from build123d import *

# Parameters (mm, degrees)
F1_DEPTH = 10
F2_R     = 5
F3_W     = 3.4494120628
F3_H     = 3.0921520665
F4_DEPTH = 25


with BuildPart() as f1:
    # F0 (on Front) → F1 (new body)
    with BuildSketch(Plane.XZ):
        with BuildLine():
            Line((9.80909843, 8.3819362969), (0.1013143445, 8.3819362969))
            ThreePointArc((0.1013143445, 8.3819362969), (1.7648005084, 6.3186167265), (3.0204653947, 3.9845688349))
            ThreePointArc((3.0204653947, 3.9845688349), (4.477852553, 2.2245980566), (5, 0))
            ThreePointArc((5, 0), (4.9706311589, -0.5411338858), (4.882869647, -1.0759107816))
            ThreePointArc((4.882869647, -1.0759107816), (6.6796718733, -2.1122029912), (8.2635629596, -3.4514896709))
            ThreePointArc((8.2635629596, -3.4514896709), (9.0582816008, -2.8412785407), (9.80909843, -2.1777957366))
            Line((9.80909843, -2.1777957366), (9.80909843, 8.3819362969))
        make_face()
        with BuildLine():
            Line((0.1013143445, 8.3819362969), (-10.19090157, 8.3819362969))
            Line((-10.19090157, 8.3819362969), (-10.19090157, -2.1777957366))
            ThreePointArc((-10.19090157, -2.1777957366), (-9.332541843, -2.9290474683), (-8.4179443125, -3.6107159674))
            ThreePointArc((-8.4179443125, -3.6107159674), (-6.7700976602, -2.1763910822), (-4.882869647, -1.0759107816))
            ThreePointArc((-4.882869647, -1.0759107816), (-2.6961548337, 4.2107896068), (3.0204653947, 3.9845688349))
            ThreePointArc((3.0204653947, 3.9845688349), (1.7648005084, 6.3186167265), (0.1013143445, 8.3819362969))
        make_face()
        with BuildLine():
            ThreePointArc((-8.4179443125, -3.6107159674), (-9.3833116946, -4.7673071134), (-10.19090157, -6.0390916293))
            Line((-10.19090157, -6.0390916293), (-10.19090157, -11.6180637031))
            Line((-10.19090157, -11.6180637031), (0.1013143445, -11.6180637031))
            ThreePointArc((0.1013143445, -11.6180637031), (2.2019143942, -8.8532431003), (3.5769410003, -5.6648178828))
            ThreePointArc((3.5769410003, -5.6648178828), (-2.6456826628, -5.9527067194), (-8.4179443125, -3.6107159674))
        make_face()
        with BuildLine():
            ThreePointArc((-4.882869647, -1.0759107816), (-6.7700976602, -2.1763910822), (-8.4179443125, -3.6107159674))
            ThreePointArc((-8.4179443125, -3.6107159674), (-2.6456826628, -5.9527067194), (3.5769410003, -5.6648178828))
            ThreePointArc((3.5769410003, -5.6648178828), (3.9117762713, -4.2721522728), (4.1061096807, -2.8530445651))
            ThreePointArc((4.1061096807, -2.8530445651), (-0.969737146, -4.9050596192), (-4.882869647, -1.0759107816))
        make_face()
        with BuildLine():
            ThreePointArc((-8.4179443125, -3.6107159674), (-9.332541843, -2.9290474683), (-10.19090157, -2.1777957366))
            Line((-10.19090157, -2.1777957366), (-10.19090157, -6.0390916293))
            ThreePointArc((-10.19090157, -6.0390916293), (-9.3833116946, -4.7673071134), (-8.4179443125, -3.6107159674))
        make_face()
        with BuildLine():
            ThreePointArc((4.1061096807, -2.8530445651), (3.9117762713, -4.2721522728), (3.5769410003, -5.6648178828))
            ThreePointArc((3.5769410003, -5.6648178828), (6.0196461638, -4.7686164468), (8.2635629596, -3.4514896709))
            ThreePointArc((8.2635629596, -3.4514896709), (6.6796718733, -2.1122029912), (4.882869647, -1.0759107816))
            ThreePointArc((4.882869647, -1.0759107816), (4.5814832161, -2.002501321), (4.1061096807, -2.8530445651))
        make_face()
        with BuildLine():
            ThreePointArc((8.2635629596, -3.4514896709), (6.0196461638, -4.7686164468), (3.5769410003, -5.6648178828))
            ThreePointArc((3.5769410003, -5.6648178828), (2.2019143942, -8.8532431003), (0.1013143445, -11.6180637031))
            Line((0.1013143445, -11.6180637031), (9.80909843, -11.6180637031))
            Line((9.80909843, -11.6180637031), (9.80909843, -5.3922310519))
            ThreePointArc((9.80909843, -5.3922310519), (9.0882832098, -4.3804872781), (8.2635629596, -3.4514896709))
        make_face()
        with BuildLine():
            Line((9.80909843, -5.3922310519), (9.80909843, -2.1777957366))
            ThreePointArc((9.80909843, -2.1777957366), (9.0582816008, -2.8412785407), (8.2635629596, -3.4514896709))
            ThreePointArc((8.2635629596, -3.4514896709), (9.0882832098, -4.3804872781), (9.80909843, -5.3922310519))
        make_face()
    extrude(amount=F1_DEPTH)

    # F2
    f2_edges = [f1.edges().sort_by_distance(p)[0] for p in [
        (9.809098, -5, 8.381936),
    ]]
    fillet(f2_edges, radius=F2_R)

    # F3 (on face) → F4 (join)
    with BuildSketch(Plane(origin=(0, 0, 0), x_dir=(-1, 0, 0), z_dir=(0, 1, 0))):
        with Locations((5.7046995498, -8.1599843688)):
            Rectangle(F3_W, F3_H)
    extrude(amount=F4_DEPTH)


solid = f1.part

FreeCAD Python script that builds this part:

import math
import FreeCAD as App
import Part
import Sketcher

V = App.Vector
Q = App.Units.Quantity


def edges_at(feature, points):
    """Names of the edges that pass closest to the given points."""
    edges = feature.Shape.Edges
    near = lambda p: min(range(len(edges)), key=lambda i: edges[i].distToShape(Part.Vertex(*p))[0])
    return sorted({f"Edge{near(p) + 1}" for p in points})


def add_polygon(sketch, points):
    """Adds a closed chain of lines whose ends are joined by coincident constraints."""
    first, n = sketch.GeometryCount, len(points)
    for a, b in zip(points, points[1:] + points[:1]):
        sketch.addGeometry(Part.LineSegment(App.Vector(*a, 0), App.Vector(*b, 0)), False)
    for i in range(n):
        sketch.addConstraint(Sketcher.Constraint("Coincident", first + i, 2, first + (i + 1) % n, 1))

doc = App.newDocument("Part")
params = doc.addObject("Spreadsheet::Sheet", "Params")
for row, (alias, value) in enumerate([
    ("sketch1_radius", "5 mm"),
    ("sketch1_width", "20 mm"),
    ("pad1_length", "10 mm"),
    ("fillet_radius", "5 mm"),
    ("pad2_length", "25 mm"),
], start=1):
    params.set(f"A{row}", alias)
    params.set(f"B{row}", "=" + value)
    params.setAlias(f"B{row}", alias)

body = doc.addObject("PartDesign::Body", "Body")

# Sketch on XZ plane
sketch1 = body.newObject("Sketcher::SketchObject", "Sketch")
sketch1.AttachmentSupport = (doc.getObject("XZ_Plane"), [""])
sketch1.MapMode = "FlatFace"
add_polygon(sketch1, [(9.8, 8.4), (-10.2, 8.4), (-10.2, -11.6), (9.8, -11.6)])  # lines 0-3
sketch1.addGeometry(Part.ArcOfCircle(Part.Circle(V(0, 0, 0), V(0, 0, 1), 5), math.radians(-168), math.radians(-35)), False)  # 4
sketch1.addGeometry(Part.ArcOfCircle(Part.Circle(V(0, 0, 0), V(0, 0, 1), 5), math.radians(53), math.radians(192)), False)  # 5
sketch1.addGeometry(Part.ArcOfCircle(Part.Circle(V(0, 0, 0), V(0, 0, 1), 5), math.radians(0), math.radians(53)), False)  # 6
sketch1.addGeometry(Part.ArcOfCircle(Part.Circle(V(0, 0, 0), V(0, 0, 1), 5), math.radians(-12.43), math.radians(0)), False)  # 7
sketch1.addGeometry(Part.ArcOfCircle(Part.Circle(V(0, 0, 0), V(0, 0, 1), 5), math.radians(-35), math.radians(-12)), False)  # 8
sketch1.addConstraint(Sketcher.Constraint("Tangent", 4, 1, 5, 2))
sketch1.addConstraint(Sketcher.Constraint("Tangent", 5, 1, 6, 2))
sketch1.addConstraint(Sketcher.Constraint("Tangent", 6, 1, 7, 2))
sketch1.addConstraint(Sketcher.Constraint("Tangent", 7, 1, 8, 2))
sketch1.addConstraint(Sketcher.Constraint("Tangent", 8, 1, 4, 2))
sketch1.addConstraint(Sketcher.Constraint("Horizontal", 0))
sketch1.addConstraint(Sketcher.Constraint("Vertical", 1))
sketch1.addConstraint(Sketcher.Constraint("Horizontal", 2))
sketch1.addConstraint(Sketcher.Constraint("Vertical", 3))
sketch1.addConstraint(Sketcher.Constraint("Coincident", 4, 3, -1, 1))
sketch1.addConstraint(Sketcher.Constraint("Coincident", 6, 3, -1, 1))
sketch1.addConstraint(Sketcher.Constraint("PointOnObject", 6, 1, -1))
sketch1.addConstraint(Sketcher.Constraint("Horizontal", 4, 1, 7, 1))
sketch1.addConstraint(Sketcher.Constraint("Equal", 2, 1))
sketch1.addConstraint(Sketcher.Constraint("Radius", 4, Q("5 mm")))
sketch1.addConstraint(Sketcher.Constraint("DistanceX", 0, 2, 0, 1, Q("20 mm")))
sketch1.addConstraint(Sketcher.Constraint("DistanceX", 0, 2, -1, 1, Q("10.190902 mm")))
sketch1.addConstraint(Sketcher.Constraint("DistanceX", 4, 1, -1, 1, Q("4.88287 mm")))
sketch1.addConstraint(Sketcher.Constraint("DistanceY", -1, 1, 5, 1, Q("3.984569 mm")))
sketch1.addConstraint(Sketcher.Constraint("DistanceX", -1, 1, 8, 1, Q("4.10611 mm")))
sketch1.addConstraint(Sketcher.Constraint("DistanceY", -1, 1, 0, 2, Q("8.381936 mm")))
sketch1.setExpression("Constraints[18]", "Params.sketch1_radius")
sketch1.setExpression("Constraints[19]", "Params.sketch1_width")
pad1 = body.newObject("PartDesign::Pad", "Pad")
pad1.Profile = sketch1
pad1.setExpression("Length", "Params.pad1_length")
doc.recompute()

fillet = body.newObject("PartDesign::Fillet", "Fillet")
fillet.Base = (pad1, edges_at(pad1, [(9.809, -5, 8.382)]))
fillet.setExpression("Radius", "Params.fillet_radius")

# Sketch on XZ plane
sketch2 = body.newObject("Sketcher::SketchObject", "Sketch001")
sketch2.AttachmentSupport = (doc.getObject("XZ_Plane"), [""])
sketch2.MapMode = "FlatFace"
add_polygon(sketch2, [(-4, -6.6), (-4, -9.7), (-7.4, -9.7), (-7.4, -6.6)])  # lines 0-3
sketch2.addConstraint(Sketcher.Constraint("Vertical", 0))
sketch2.addConstraint(Sketcher.Constraint("Horizontal", 1))
sketch2.addConstraint(Sketcher.Constraint("Vertical", 2))
sketch2.addConstraint(Sketcher.Constraint("Horizontal", 3))
sketch2.addConstraint(Sketcher.Constraint("DistanceX", 1, 2, 1, 1, Q("3.449412 mm")))
sketch2.addConstraint(Sketcher.Constraint("DistanceY", 0, 2, 0, 1, Q("3.092152 mm")))
sketch2.addConstraint(Sketcher.Constraint("DistanceY", 0, 2, -1, 1, Q("9.70606 mm")))
sketch2.addConstraint(Sketcher.Constraint("DistanceX", 0, 2, -1, 1, Q("3.979994 mm")))
pad2 = body.newObject("PartDesign::Pad", "Pad001")
pad2.Profile = sketch2
pad2.setExpression("Length", "Params.pad2_length")
pad2.Reversed = True

doc.recompute()
